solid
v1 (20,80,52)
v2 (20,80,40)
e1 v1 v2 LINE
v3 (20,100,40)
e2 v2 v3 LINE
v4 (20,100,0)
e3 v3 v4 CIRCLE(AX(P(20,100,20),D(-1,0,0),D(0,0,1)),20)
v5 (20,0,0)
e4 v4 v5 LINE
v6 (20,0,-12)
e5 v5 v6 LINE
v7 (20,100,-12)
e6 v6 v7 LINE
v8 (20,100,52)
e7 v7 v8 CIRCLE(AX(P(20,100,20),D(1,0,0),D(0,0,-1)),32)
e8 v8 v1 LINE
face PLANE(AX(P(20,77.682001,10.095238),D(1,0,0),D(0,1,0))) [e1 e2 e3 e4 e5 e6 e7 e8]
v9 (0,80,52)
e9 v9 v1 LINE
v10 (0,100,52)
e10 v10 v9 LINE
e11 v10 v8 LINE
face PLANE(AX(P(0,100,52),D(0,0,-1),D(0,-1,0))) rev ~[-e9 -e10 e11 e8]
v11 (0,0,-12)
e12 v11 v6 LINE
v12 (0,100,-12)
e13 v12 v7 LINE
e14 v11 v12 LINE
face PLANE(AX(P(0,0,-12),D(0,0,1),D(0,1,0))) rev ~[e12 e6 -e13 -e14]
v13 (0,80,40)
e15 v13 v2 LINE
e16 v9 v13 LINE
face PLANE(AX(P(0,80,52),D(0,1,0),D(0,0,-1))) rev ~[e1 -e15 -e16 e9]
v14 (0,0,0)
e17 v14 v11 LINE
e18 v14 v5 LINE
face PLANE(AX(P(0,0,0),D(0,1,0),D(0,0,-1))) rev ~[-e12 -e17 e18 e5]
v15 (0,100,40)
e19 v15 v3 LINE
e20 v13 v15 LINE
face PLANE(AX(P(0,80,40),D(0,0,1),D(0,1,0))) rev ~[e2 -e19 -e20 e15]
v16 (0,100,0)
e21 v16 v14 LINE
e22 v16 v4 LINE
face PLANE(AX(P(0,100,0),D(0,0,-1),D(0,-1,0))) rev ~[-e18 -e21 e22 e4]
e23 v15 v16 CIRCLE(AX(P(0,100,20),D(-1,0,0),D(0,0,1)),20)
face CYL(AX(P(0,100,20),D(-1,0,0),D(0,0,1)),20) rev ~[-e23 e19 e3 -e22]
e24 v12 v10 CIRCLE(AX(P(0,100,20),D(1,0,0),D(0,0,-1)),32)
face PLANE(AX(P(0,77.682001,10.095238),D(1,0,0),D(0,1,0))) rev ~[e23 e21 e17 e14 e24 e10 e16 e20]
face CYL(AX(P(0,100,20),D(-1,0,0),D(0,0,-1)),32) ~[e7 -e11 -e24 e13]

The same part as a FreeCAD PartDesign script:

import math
import FreeCAD as App
import Part
import Sketcher

doc = App.newDocument("Part")
body = doc.addObject("PartDesign::Body", "Body")

# Sketch on YZ plane
sketch1 = body.newObject("Sketcher::SketchObject", "Sketch")
sketch1.AttachmentSupport = (doc.getObject("YZ_Plane"), [""])
sketch1.MapMode = "FlatFace"
sketch1.addGeometry(Part.LineSegment(App.Vector(100, 0, 0), App.Vector(0, 0, 0)), False)
sketch1.addGeometry(Part.LineSegment(App.Vector(0, 0, 0), App.Vector(0, -12, 0)), False)
sketch1.addGeometry(Part.LineSegment(App.Vector(0, -12, 0), App.Vector(100, -12, 0)), False)
sketch1.addGeometry(Part.ArcOfCircle(Part.Circle(App.Vector(100, 20, 0), App.Vector(0, 0, 1), 32), math.radians(-90), math.radians(90)), False)
sketch1.addGeometry(Part.LineSegment(App.Vector(100, 52, 0), App.Vector(80, 52, 0)), False)
sketch1.addGeometry(Part.LineSegment(App.Vector(80, 52, 0), App.Vector(80, 40, 0)), False)
sketch1.addGeometry(Part.LineSegment(App.Vector(80, 40, 0), App.Vector(100, 40, 0)), False)
sketch1.addGeometry(Part.ArcOfCircle(Part.Circle(App.Vector(100, 20, 0), App.Vector(0, 0, 1), 20), math.radians(-90), math.radians(90)), False)
sketch1.addConstraint(Sketcher.Constraint("Coincident", 0, 2, 1, 1))
sketch1.addConstraint(Sketcher.Constraint("Coincident", 1, 2, 2, 1))
sketch1.addConstraint(Sketcher.Constraint("Tangent", 2, 2, 3, 1))
sketch1.addConstraint(Sketcher.Constraint("Tangent", 3, 2, 4, 1))
sketch1.addConstraint(Sketcher.Constraint("Coincident", 4, 2, 5, 1))
sketch1.addConstraint(Sketcher.Constraint("Coincident", 5, 2, 6, 1))
sketch1.addConstraint(Sketcher.Constraint("Tangent", 6, 2, 7, 2))
sketch1.addConstraint(Sketcher.Constraint("Tangent", 7, 1, 0, 1))
sketch1.addConstraint(Sketcher.Constraint("Horizontal", 0))
sketch1.addConstraint(Sketcher.Constraint("Vertical", 1))
sketch1.addConstraint(Sketcher.Constraint("Horizontal", 2))
sketch1.addConstraint(Sketcher.Constraint("Horizontal", 4))
sketch1.addConstraint(Sketcher.Constraint("Vertical", 5))
sketch1.addConstraint(Sketcher.Constraint("Horizontal", 6))
sketch1.addConstraint(Sketcher.Constraint("Coincident", 0, 2, -1, 1))
sketch1.addConstraint(Sketcher.Constraint("Coincident", 7, 3, 3, 3))
sketch1.addConstraint(Sketcher.Constraint("Radius", 3, 32.0))
sketch1.addConstraint(Sketcher.Constraint("Radius", 7, 20.0))
sketch1.addConstraint(Sketcher.Constraint("DistanceX", 0, 2, 0, 1, 100.0))
sketch1.addConstraint(Sketcher.Constraint("DistanceX", 4, 2, 4, 1, 20.0))
pad1 = body.newObject("PartDesign::Pad", "Pad")
pad1.Profile = sketch1
pad1.Length = 20

doc.recompute()
